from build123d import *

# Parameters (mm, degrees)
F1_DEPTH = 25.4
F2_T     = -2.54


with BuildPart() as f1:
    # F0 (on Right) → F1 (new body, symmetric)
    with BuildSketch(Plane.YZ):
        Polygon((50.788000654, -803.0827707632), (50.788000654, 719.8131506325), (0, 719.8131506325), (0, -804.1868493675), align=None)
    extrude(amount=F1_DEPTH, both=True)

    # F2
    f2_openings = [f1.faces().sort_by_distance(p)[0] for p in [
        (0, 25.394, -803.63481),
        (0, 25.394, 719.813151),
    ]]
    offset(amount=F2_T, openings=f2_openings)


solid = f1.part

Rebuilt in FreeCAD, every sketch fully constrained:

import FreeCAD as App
import Part
import Sketcher
Q = App.Units.Quantity


def faces_at(feature, points):
    """Names of the faces that lie closest to the given points."""
    faces = feature.Shape.Faces
    near = lambda p: min(range(len(faces)), key=lambda i: faces[i].distToShape(Part.Vertex(*p))[0])
    return sorted({f"Face{near(p) + 1}" for p in points})

doc = App.newDocument("Part")
body = doc.addObject("PartDesign::Body", "Body")

# Sketch on YZ plane
sketch1 = body.newObject("Sketcher::SketchObject", "Sketch")
sketch1.AttachmentSupport = (doc.getObject("YZ_Plane"), [""])
sketch1.MapMode = "FlatFace"
sketch1.addGeometry([
    Part.LineSegment(App.Vector(51, -803, 0), App.Vector(51, 720, 0)),
    Part.LineSegment(App.Vector(51, 720, 0), App.Vector(0, 720, 0)),
    Part.LineSegment(App.Vector(0, 720, 0), App.Vector(0, -804, 0)),
    Part.LineSegment(App.Vector(0, -804, 0), App.Vector(51, -803, 0)),
], False)
sketch1.addConstraint([
    Sketcher.Constraint("Coincident", 0, 2, 1, 1),
    Sketcher.Constraint("Coincident", 1, 2, 2, 1),
    Sketcher.Constraint("Coincident", 2, 2, 3, 1),
    Sketcher.Constraint("Coincident", 3, 2, 0, 1),
    Sketcher.Constraint("Vertical", 0),
    Sketcher.Constraint("Horizontal", 1),
    Sketcher.Constraint("Vertical", 2),
    Sketcher.Constraint("PointOnObject", 1, 2, -2),
    Sketcher.Constraint("DistanceY", 2, 2, 2, 1, Q("60 in")),
    Sketcher.Constraint("Distance", 3, Q("2 in")),
    Sketcher.Constraint("DistanceX", 1, 2, 1, 1, 50.788001),
    Sketcher.Constraint("DistanceY", -1, 1, 0, 2, 719.813151),
])
pad1 = body.newObject("PartDesign::Pad", "Pad")
pad1.Profile = sketch1
pad1.Length = Q("2 in")
pad1.Midplane = True
doc.recompute()

thickness = body.newObject("PartDesign::Thickness", "Thickness")
thickness.Base = (pad1, faces_at(pad1, [(0, 25.394, -803.635), (0, 25.394, 719.813)]))
thickness.Value = Q("0.1 in")
thickness.Reversed = True
thickness.Join = "Arc"

doc.recompute()
